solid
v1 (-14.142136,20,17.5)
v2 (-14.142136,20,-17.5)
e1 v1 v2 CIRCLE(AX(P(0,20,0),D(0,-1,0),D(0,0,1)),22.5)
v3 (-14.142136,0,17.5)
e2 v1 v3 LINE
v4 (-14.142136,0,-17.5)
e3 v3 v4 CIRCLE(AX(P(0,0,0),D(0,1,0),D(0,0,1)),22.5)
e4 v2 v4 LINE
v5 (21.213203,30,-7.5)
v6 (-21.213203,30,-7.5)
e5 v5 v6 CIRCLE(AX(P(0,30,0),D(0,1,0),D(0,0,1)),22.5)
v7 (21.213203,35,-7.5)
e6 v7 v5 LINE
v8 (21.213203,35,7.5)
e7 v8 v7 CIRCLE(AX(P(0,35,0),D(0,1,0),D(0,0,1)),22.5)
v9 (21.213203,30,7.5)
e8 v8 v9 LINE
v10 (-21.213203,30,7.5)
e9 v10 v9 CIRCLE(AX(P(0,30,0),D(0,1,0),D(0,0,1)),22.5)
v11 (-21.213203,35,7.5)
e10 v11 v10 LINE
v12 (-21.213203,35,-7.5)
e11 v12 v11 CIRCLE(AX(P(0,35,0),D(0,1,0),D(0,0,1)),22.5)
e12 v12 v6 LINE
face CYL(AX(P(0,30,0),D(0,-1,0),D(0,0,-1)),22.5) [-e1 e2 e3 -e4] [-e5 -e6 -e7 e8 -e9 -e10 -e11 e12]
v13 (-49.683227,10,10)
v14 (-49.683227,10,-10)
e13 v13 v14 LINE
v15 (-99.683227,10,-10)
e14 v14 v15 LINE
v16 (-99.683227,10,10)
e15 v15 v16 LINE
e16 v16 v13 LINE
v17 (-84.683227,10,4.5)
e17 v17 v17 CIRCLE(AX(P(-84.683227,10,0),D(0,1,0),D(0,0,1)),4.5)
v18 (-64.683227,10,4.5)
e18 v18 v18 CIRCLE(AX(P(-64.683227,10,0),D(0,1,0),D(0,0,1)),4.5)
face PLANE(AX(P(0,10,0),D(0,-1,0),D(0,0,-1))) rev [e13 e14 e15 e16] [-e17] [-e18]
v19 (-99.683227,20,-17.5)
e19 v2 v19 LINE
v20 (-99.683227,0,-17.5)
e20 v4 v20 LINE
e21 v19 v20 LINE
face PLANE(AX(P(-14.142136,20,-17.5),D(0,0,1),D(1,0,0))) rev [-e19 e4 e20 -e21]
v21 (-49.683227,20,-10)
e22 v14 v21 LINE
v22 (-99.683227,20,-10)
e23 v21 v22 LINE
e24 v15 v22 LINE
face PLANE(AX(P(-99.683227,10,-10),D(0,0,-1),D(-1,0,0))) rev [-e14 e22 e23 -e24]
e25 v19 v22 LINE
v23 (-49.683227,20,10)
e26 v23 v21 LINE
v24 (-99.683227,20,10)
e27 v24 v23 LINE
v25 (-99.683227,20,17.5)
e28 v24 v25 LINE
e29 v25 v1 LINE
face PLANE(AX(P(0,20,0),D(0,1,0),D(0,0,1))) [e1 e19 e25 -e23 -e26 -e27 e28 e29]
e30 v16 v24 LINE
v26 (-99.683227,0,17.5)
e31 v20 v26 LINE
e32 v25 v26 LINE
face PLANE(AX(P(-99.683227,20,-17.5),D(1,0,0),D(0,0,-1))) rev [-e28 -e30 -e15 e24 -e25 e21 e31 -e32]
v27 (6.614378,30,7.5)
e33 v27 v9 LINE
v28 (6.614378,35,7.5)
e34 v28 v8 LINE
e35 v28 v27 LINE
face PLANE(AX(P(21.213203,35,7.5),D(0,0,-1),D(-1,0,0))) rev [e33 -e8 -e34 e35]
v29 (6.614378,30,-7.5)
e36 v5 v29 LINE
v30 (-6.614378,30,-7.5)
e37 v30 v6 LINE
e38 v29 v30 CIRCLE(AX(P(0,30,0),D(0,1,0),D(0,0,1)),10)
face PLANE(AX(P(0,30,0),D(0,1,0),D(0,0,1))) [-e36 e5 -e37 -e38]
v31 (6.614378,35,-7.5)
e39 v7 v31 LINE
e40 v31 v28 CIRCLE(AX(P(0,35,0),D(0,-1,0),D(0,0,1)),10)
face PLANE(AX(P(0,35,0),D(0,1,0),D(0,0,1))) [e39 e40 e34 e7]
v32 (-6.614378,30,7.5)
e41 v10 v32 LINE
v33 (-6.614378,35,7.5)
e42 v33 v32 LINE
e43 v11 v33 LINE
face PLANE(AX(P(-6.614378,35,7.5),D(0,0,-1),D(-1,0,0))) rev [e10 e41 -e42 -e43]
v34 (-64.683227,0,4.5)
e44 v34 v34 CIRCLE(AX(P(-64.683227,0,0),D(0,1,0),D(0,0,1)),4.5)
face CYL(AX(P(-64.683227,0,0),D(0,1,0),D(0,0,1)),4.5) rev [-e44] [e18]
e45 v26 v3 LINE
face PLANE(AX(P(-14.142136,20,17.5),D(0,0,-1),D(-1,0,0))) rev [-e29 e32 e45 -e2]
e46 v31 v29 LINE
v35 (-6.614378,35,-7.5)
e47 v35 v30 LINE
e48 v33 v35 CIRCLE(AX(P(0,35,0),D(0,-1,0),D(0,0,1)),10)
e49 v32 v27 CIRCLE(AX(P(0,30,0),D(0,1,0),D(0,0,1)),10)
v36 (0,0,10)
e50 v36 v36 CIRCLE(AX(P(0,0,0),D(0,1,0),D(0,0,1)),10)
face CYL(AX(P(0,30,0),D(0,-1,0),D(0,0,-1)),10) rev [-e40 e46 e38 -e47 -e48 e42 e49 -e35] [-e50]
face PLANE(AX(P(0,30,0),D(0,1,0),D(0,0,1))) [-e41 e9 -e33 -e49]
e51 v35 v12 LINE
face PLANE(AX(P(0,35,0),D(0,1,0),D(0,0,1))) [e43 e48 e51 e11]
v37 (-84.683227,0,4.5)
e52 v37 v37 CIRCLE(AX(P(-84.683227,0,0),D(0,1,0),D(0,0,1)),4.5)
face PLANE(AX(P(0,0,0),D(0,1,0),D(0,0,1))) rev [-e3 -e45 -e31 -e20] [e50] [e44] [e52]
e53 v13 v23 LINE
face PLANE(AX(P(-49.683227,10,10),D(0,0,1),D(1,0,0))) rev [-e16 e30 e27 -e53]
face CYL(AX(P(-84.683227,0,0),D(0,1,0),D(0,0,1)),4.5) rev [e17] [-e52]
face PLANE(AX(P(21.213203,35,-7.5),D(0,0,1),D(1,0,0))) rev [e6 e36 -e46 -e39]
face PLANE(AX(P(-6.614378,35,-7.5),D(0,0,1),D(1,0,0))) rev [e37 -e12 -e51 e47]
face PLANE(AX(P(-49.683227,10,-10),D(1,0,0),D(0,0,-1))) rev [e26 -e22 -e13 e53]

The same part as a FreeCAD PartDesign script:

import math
import FreeCAD as App
import Part
import Sketcher
Q = App.Units.Quantity

doc = App.newDocument("Part")
body = doc.addObject("PartDesign::Body", "Body")

# Sketch on XZ plane
sketch1 = body.newObject("Sketcher::SketchObject", "Sketch")
sketch1.AttachmentSupport = (doc.getObject("XZ_Plane"), [""])
sketch1.MapMode = "FlatFace"
sketch1.addGeometry([
    Part.Circle(App.Vector(0, 0, 0), App.Vector(0, 0, 1), 22),
    Part.Circle(App.Vector(0, 0, 0), App.Vector(0, 0, 1), 10),
], False)
sketch1.addConstraint([
    Sketcher.Constraint("Coincident", 0, 3, -1, 1),
    Sketcher.Constraint("Coincident", 1, 3, -1, 1),
    Sketcher.Constraint("Diameter", 0, Q("45 mm")),
    Sketcher.Constraint("Diameter", 1, Q("20 mm")),
])
pad1 = body.newObject("PartDesign::Pad", "Pad")
pad1.Profile = sketch1
pad1.Length = 30
pad1.Reversed = True

# Sketch on XZ plane
sketch2 = body.newObject("Sketcher::SketchObject", "Sketch001")
sketch2.AttachmentSupport = (doc.getObject("XZ_Plane"), [""])
sketch2.MapMode = "FlatFace"
sketch2.AttachmentOffset = App.Placement(App.Vector(0, 0, -30), App.Rotation())
sketch2.addGeometry([
    Part.LineSegment(App.Vector(-7, -8, 0), App.Vector(-21, -8, 0)),  # 0
    Part.ArcOfCircle(Part.Circle(App.Vector(0, 0, 0), App.Vector(0, 0, 1), 23), math.radians(161), math.radians(199)),  # 1
    Part.LineSegment(App.Vector(-21, 8, 0), App.Vector(-7, 8, 0)),  # 2
    Part.ArcOfCircle(Part.Circle(App.Vector(0, 0, 0), App.Vector(0, 0, 1), 10), math.radians(131), math.radians(229)),  # 3
    Part.LineSegment(App.Vector(21, -8, 0), App.Vector(7, -8, 0)),  # 4
    Part.ArcOfCircle(Part.Circle(App.Vector(0, 0, 0), App.Vector(0, 0, 1), 10), math.radians(-49), math.radians(49)),  # 5
    Part.LineSegment(App.Vector(7, 8, 0), App.Vector(21, 8, 0)),  # 6
    Part.ArcOfCircle(Part.Circle(App.Vector(0, 0, 0), App.Vector(0, 0, 1), 23), math.radians(-19), math.radians(19)),  # 7
], False)
sketch2.addConstraint([
    Sketcher.Constraint("Coincident", 0, 2, 1, 2),
    Sketcher.Constraint("Coincident", 1, 1, 2, 1),
    Sketcher.Constraint("Coincident", 2, 2, 3, 1),
    Sketcher.Constraint("Coincident", 3, 2, 0, 1),
    Sketcher.Constraint("Coincident", 4, 2, 5, 1),
    Sketcher.Constraint("Coincident", 5, 2, 6, 1),
    Sketcher.Constraint("Coincident", 6, 2, 7, 2),
    Sketcher.Constraint("Coincident", 7, 1, 4, 1),
    Sketcher.Constraint("Horizontal", 0),
    Sketcher.Constraint("Horizontal", 2),
    Sketcher.Constraint("Horizontal", 4),
    Sketcher.Constraint("Horizontal", 6),
    Sketcher.Constraint("Coincident", 1, 3, -1, 1),
    Sketcher.Constraint("Coincident", 3, 3, -1, 1),
    Sketcher.Constraint("Coincident", 5, 3, -1, 1),
    Sketcher.Constraint("Coincident", 7, 3, -1, 1),
    Sketcher.Constraint("Equal", 3, 5),
    Sketcher.Constraint("Equal", 1, 7),
    Sketcher.Constraint("Horizontal", 3, 2, 4, 2),
    Sketcher.Constraint("Horizontal", 2, 2, 5, 2),
    Sketcher.Constraint("Vertical", 0, 2, 1, 1),
    Sketcher.Constraint("Radius", 3, Q("10 mm")),
    Sketcher.Constraint("Radius", 1, Q("22.5 mm")),
    Sketcher.Constraint("DistanceY", 0, 2, 1, 1, Q("15 mm")),
])
pad2 = body.newObject("PartDesign::Pad", "Pad001")
pad2.Profile = sketch2
pad2.Length = 5
pad2.Reversed = True

# Sketch on XZ plane
sketch3 = body.newObject("Sketcher::SketchObject", "Sketch002")
sketch3.AttachmentSupport = (doc.getObject("XZ_Plane"), [""])
sketch3.MapMode = "FlatFace"
sketch3.addGeometry([
    Part.LineSegment(App.Vector(-100, 18, 0), App.Vector(-14, 18, 0)),  # 0
    Part.ArcOfCircle(Part.Circle(App.Vector(0, 0, 0), App.Vector(0, 0, 1), 23), math.radians(129), math.radians(161)),  # 1
    Part.ArcOfCircle(Part.Circle(App.Vector(0, 0, 0), App.Vector(0, 0, 1), 23), math.radians(161), math.radians(199)),  # 2
    Part.ArcOfCircle(Part.Circle(App.Vector(0, 0, 0), App.Vector(0, 0, 1), 23), math.radians(-161), math.radians(-129)),  # 3
    Part.LineSegment(App.Vector(-14, -18, 0), App.Vector(-100, -18, 0)),  # 4
    Part.LineSegment(App.Vector(-100, -18, 0), App.Vector(-100, 18, 0)),  # 5
], False)
sketch3.addConstraint([
    Sketcher.Constraint("Coincident", 0, 2, 1, 1),
    Sketcher.Constraint("Tangent", 1, 2, 2, 1),
    Sketcher.Constraint("Tangent", 2, 2, 3, 1),
    Sketcher.Constraint("Coincident", 3, 2, 4, 1),
    Sketcher.Constraint("Coincident", 4, 2, 5, 1),
    Sketcher.Constraint("Coincident", 5, 2, 0, 1),
    Sketcher.Constraint("Horizontal", 0),
    Sketcher.Constraint("Horizontal", 4),
    Sketcher.Constraint("Vertical", 5),
    Sketcher.Constraint("Coincident", 1, 3, -1, 1),
    Sketcher.Constraint("Coincident", 3, 3, -1, 1),
    Sketcher.Constraint("Vertical", 1, 2, 2, 2),
    Sketcher.Constraint("Vertical", 0, 2, 3, 2),
    Sketcher.Constraint("Radius", 1, Q("22.5 mm")),
    Sketcher.Constraint("DistanceY", 5, 1, 5, 2, Q("35 mm")),
    Sketcher.Constraint("DistanceY", 1, 2, 0, 2, Q("10 mm")),
    Sketcher.Constraint("DistanceX", 0, 1, 0, 2, Q("85.541091 mm")),
])
pad3 = body.newObject("PartDesign::Pad", "Pad002")
pad3.Profile = sketch3
pad3.Length = 20
pad3.Reversed = True

# Sketch on XZ plane
sketch4 = body.newObject("Sketcher::SketchObject", "Sketch003")
sketch4.AttachmentSupport = (doc.getObject("XZ_Plane"), [""])
sketch4.MapMode = "FlatFace"
sketch4.AttachmentOffset = App.Placement(App.Vector(0, 0, -20), App.Rotation())
sketch4.addGeometry([
    Part.LineSegment(App.Vector(-100, -10, 0), App.Vector(-100, 10, 0)),
    Part.LineSegment(App.Vector(-100, 10, 0), App.Vector(-50, 10, 0)),
    Part.LineSegment(App.Vector(-50, 10, 0), App.Vector(-50, -10, 0)),
    Part.LineSegment(App.Vector(-50, -10, 0), App.Vector(-100, -10, 0)),
], False)
sketch4.addConstraint([
    Sketcher.Constraint("Coincident", 0, 2, 1, 1),
    Sketcher.Constraint("Coincident", 1, 2, 2, 1),
    Sketcher.Constraint("Coincident", 2, 2, 3, 1),
    Sketcher.Constraint("Coincident", 3, 2, 0, 1),
    Sketcher.Constraint("Vertical", 0),
    Sketcher.Constraint("Horizontal", 1),
    Sketcher.Constraint("Vertical", 2),
    Sketcher.Constraint("Horizontal", 3),
    Sketcher.Constraint("DistanceX", 1, 1, 1, 2, Q("50 mm")),
    Sketcher.Constraint("DistanceY", 0, 1, 0, 2, Q("20 mm")),
    Sketcher.Constraint("DistanceY", -1, 1, 0, 2, Q("10 mm")),
    Sketcher.Constraint("DistanceX", 0, 2, -1, 1, Q("99.683227 mm")),
])
pocket1 = body.newObject("PartDesign::Pocket", "Pocket")
pocket1.Profile = sketch4
pocket1.Length = 10
pocket1.Reversed = True

# Sketch on XZ plane
sketch5 = body.newObject("Sketcher::SketchObject", "Sketch004")
sketch5.AttachmentSupport = (doc.getObject("XZ_Plane"), [""])
sketch5.MapMode = "FlatFace"
sketch5.AttachmentOffset = App.Placement(App.Vector(0, 0, -10), App.Rotation())
sketch5.addGeometry([
    Part.Circle(App.Vector(-84.7, 0, 0), App.Vector(0, 0, 1), 4.5),
    Part.Circle(App.Vector(-64.7, 0, 0), App.Vector(0, 0, 1), 4.5),
], False)
sketch5.addConstraint([
    Sketcher.Constraint("Equal", 0, 1),
    Sketcher.Constraint("PointOnObject", 0, 3, -1),
    Sketcher.Constraint("PointOnObject", 1, 3, -1),
    Sketcher.Constraint("Diameter", 0, Q("9 mm")),
    Sketcher.Constraint("DistanceX", 0, 3, 1, 3, Q("20 mm")),
    Sketcher.Constraint("DistanceX", 0, 3, -1, 1, Q("84.683227 mm")),
])
pocket2 = body.newObject("PartDesign::Pocket", "Pocket001")
pocket2.Profile = sketch5
pocket2.Length = 10
pocket2.Reversed = True

doc.recompute()
